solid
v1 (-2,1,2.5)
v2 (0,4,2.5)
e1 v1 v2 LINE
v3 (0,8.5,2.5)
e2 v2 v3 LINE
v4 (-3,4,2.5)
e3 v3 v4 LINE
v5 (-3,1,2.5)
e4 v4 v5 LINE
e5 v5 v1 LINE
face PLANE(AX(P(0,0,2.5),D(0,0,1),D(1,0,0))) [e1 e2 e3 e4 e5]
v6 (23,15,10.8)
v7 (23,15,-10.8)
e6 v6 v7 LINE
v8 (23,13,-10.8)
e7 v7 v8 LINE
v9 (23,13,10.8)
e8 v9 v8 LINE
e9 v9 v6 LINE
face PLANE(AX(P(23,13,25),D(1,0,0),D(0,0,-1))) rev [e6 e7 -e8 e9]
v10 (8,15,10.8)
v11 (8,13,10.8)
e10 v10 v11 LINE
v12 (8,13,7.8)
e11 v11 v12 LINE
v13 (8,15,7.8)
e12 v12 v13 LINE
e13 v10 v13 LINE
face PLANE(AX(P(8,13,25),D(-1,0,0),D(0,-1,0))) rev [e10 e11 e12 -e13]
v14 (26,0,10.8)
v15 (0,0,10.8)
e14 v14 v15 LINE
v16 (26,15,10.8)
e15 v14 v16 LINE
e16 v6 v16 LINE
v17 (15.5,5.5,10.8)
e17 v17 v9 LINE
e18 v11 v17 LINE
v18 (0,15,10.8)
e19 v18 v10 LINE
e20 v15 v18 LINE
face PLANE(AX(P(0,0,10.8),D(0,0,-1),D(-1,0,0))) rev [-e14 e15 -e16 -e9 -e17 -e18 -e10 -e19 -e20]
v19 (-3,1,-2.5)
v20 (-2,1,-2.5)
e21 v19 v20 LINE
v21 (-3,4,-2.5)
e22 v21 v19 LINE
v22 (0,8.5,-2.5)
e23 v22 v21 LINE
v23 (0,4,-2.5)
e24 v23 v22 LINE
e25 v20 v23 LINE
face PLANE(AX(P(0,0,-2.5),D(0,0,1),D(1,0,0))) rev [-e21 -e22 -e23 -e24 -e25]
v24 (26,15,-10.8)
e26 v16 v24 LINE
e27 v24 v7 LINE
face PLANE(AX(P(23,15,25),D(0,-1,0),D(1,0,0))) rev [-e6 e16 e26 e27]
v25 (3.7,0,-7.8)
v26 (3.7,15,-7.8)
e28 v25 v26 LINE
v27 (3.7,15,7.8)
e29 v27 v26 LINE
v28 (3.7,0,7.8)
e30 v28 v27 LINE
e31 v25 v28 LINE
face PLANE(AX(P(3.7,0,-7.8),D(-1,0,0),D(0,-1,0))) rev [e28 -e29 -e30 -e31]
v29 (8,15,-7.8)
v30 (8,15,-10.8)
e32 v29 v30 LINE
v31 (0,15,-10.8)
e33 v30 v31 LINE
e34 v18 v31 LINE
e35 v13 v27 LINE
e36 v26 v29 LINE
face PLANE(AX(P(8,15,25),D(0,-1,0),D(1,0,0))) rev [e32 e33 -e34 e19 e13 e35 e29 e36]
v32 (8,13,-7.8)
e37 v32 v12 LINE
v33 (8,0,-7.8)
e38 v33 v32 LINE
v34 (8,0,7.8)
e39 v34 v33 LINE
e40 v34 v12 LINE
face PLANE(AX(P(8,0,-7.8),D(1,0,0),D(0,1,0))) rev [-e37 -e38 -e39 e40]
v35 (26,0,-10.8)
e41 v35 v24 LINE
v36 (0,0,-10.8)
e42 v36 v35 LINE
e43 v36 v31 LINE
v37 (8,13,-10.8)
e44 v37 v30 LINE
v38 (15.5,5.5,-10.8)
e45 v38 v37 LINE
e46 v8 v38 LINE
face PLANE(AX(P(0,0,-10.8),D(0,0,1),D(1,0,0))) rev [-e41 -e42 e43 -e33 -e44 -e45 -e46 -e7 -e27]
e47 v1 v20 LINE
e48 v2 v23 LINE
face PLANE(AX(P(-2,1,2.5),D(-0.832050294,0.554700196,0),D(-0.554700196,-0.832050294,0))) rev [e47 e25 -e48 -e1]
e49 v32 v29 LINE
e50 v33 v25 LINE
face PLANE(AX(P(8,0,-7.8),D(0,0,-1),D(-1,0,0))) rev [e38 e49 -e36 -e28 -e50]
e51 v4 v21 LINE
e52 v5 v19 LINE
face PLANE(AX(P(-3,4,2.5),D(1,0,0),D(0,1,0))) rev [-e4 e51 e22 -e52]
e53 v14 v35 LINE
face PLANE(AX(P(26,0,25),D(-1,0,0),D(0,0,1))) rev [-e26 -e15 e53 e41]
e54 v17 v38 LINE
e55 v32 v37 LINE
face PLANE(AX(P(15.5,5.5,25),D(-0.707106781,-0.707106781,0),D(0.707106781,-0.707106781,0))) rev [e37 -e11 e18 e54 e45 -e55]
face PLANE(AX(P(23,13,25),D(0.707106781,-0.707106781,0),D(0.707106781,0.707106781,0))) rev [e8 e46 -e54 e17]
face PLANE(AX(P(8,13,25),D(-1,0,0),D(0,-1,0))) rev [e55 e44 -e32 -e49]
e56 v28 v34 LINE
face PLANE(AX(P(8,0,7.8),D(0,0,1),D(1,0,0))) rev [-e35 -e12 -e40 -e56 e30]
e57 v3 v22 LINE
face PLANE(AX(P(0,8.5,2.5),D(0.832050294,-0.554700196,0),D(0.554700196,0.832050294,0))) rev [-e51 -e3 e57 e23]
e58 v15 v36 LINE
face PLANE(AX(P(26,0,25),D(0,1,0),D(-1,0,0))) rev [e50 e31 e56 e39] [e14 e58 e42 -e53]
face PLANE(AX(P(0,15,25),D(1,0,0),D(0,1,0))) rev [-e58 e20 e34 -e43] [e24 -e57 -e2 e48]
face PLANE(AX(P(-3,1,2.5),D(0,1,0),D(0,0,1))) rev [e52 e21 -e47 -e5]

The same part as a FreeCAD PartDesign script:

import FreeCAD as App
import Part
import Sketcher

V = App.Vector
Q = App.Units.Quantity

doc = App.newDocument("Part")
body = doc.addObject("PartDesign::Body", "Body")

# Sketch on XY plane
sketch1 = body.newObject("Sketcher::SketchObject", "Sketch")
sketch1.AttachmentSupport = (doc.getObject("XY_Plane"), [""])
sketch1.MapMode = "FlatFace"
sketch1.addGeometry([
    Part.LineSegment(V(0, 0, 0), V(26, 0, 0)),  # 0
    Part.LineSegment(V(26, 0, 0), V(26, 15, 0)),  # 1
    Part.LineSegment(V(26, 15, 0), V(23, 15, 0)),  # 2
    Part.LineSegment(V(23, 15, 0), V(23, 13, 0)),  # 3
    Part.LineSegment(V(23, 13, 0), V(15.5, 5.5, 0)),  # 4
    Part.LineSegment(V(15.5, 5.5, 0), V(8, 13, 0)),  # 5
    Part.LineSegment(V(8, 13, 0), V(8, 15, 0)),  # 6
    Part.LineSegment(V(8, 15, 0), V(0, 15, 0)),  # 7
    Part.LineSegment(V(0, 15, 0), V(0, 0, 0)),  # 8
], False)
sketch1.addConstraint([
    Sketcher.Constraint("Coincident", 0, 2, 1, 1),
    Sketcher.Constraint("Coincident", 1, 2, 2, 1),
    Sketcher.Constraint("Coincident", 2, 2, 3, 1),
    Sketcher.Constraint("Coincident", 3, 2, 4, 1),
    Sketcher.Constraint("Coincident", 4, 2, 5, 1),
    Sketcher.Constraint("Coincident", 5, 2, 6, 1),
    Sketcher.Constraint("Coincident", 6, 2, 7, 1),
    Sketcher.Constraint("Coincident", 7, 2, 8, 1),
    Sketcher.Constraint("Coincident", 8, 2, 0, 1),
    Sketcher.Constraint("Horizontal", 0),
    Sketcher.Constraint("Vertical", 1),
    Sketcher.Constraint("Horizontal", 2),
    Sketcher.Constraint("Vertical", 3),
    Sketcher.Constraint("Vertical", 6),
    Sketcher.Constraint("Horizontal", 7),
    Sketcher.Constraint("Vertical", 8),
    Sketcher.Constraint("Coincident", 8, 2, -1, 1),
    Sketcher.Constraint("Perpendicular", 4, 5),
    Sketcher.Constraint("Horizontal", 3, 2, 5, 2),
    Sketcher.Constraint("Horizontal", 2, 2, 6, 2),
    Sketcher.Constraint("Equal", 4, 5),
    Sketcher.Constraint("DistanceX", 0, 1, 0, 2, Q("26 mm")),
    Sketcher.Constraint("DistanceX", 2, 2, 2, 1, Q("3 mm")),
    Sketcher.Constraint("DistanceX", 7, 2, 7, 1, Q("8 mm")),
    Sketcher.Constraint("DistanceY", 1, 1, 1, 2, Q("15 mm")),
    Sketcher.Constraint("DistanceY", 3, 2, 3, 1, Q("2 mm")),
])
pad1 = body.newObject("PartDesign::Pad", "Pad")
pad1.Profile = sketch1
pad1.Length = 50
pad1.Midplane = True

# Sketch on XZ plane
sketch2 = body.newObject("Sketcher::SketchObject", "Sketch001")
sketch2.AttachmentSupport = (doc.getObject("XZ_Plane"), [""])
sketch2.MapMode = "FlatFace"
sketch2.AttachmentOffset = App.Placement(V(0, 0, -15), App.Rotation())
sketch2.addGeometry([
    Part.LineSegment(V(3.7, -7.8, 0), V(3.7, 7.8, 0)),  # 0
    Part.LineSegment(V(3.7, 7.8, 0), V(8, 7.8, 0)),  # 1
    Part.LineSegment(V(8, 7.8, 0), V(8, -7.8, 0)),  # 2
    Part.LineSegment(V(8, -7.8, 0), V(3.7, -7.8, 0)),  # 3
    Part.LineSegment(V(0, -25, 0), V(0, -10.8, 0)),  # 4
    Part.LineSegment(V(0, -10.8, 0), V(26, -10.8, 0)),  # 5
    Part.LineSegment(V(26, -10.8, 0), V(26, -25, 0)),  # 6
    Part.LineSegment(V(26, -25, 0), V(0, -25, 0)),  # 7
    Part.LineSegment(V(0, 10.8, 0), V(0, 25, 0)),  # 8
    Part.LineSegment(V(0, 25, 0), V(26, 25, 0)),  # 9
    Part.LineSegment(V(26, 25, 0), V(26, 10.8, 0)),  # 10
    Part.LineSegment(V(26, 10.8, 0), V(0, 10.8, 0)),  # 11
], False)
sketch2.addConstraint([
    Sketcher.Constraint("Coincident", 0, 2, 1, 1),
    Sketcher.Constraint("Coincident", 1, 2, 2, 1),
    Sketcher.Constraint("Coincident", 2, 2, 3, 1),
    Sketcher.Constraint("Coincident", 3, 2, 0, 1),
    Sketcher.Constraint("Coincident", 4, 2, 5, 1),
    Sketcher.Constraint("Coincident", 5, 2, 6, 1),
    Sketcher.Constraint("Coincident", 6, 2, 7, 1),
    Sketcher.Constraint("Coincident", 7, 2, 4, 1),
    Sketcher.Constraint("Coincident", 8, 2, 9, 1),
    Sketcher.Constraint("Coincident", 9, 2, 10, 1),
    Sketcher.Constraint("Coincident", 10, 2, 11, 1),
    Sketcher.Constraint("Coincident", 11, 2, 8, 1),
    Sketcher.Constraint("Vertical", 0),
    Sketcher.Constraint("Horizontal", 1),
    Sketcher.Constraint("Vertical", 2),
    Sketcher.Constraint("Horizontal", 3),
    Sketcher.Constraint("Vertical", 4),
    Sketcher.Constraint("Horizontal", 5),
    Sketcher.Constraint("Vertical", 6),
    Sketcher.Constraint("Horizontal", 7),
    Sketcher.Constraint("Vertical", 8),
    Sketcher.Constraint("Horizontal", 9),
    Sketcher.Constraint("Vertical", 10),
    Sketcher.Constraint("Horizontal", 11),
    Sketcher.Constraint("Symmetric", 7, 2, 8, 2, -1, 1),
    Sketcher.Constraint("Symmetric", 5, 2, 10, 2, -1),
    Sketcher.Constraint("PointOnObject", 4, 2, -2),
    Sketcher.Constraint("DistanceX", 5, 1, 5, 2, Q("26 mm")),
    Sketcher.Constraint("DistanceX", 1, 1, 1, 2, Q("4.3 mm")),
    Sketcher.Constraint("DistanceY", 0, 1, 0, 2, Q("15.6 mm")),
    Sketcher.Constraint("DistanceY", 4, 1, 4, 2, Q("14.2 mm")),
    Sketcher.Constraint("DistanceX", -1, 1, 1, 2, Q("8 mm")),
    Sketcher.Constraint("DistanceY", 6, 2, -1, 1, Q("25 mm")),
    Sketcher.Constraint("DistanceY", 4, 2, 3, 2, Q("3 mm")),
])
pocket1 = body.newObject("PartDesign::Pocket", "Pocket")
pocket1.Profile = sketch2
pocket1.Type = "ThroughAll"
pocket1.Midplane = True

# Sketch on XY plane
sketch3 = body.newObject("Sketcher::SketchObject", "Sketch002")
sketch3.AttachmentSupport = (doc.getObject("XY_Plane"), [""])
sketch3.MapMode = "FlatFace"
sketch3.addGeometry([
    Part.LineSegment(V(0, 8.5, 0), V(-3, 4, 0)),  # 0
    Part.LineSegment(V(-3, 4, 0), V(-3, 1, 0)),  # 1
    Part.LineSegment(V(-3, 1, 0), V(-2, 1, 0)),  # 2
    Part.LineSegment(V(-2, 1, 0), V(0, 4, 0)),  # 3
    Part.LineSegment(V(0, 4, 0), V(0, 8.5, 0)),  # 4
], False)
sketch3.addConstraint([
    Sketcher.Constraint("Coincident", 0, 2, 1, 1),
    Sketcher.Constraint("Coincident", 1, 2, 2, 1),
    Sketcher.Constraint("Coincident", 2, 2, 3, 1),
    Sketcher.Constraint("Coincident", 3, 2, 4, 1),
    Sketcher.Constraint("Coincident", 4, 2, 0, 1),
    Sketcher.Constraint("Vertical", 1),
    Sketcher.Constraint("Horizontal", 2),
    Sketcher.Constraint("Vertical", 4),
    Sketcher.Constraint("PointOnObject", 3, 2, -2),
    Sketcher.Constraint("Parallel", 0, 3),
    Sketcher.Constraint("Horizontal", 0, 2, 3, 2),
    Sketcher.Constraint("DistanceX", 2, 1, 2, 2, Q("1 mm")),
    Sketcher.Constraint("DistanceY", 1, 2, 1, 1, Q("3 mm")),
    Sketcher.Constraint("DistanceY", 4, 1, 4, 2, Q("4.5 mm")),
    Sketcher.Constraint("DistanceY", -1, 1, 0, 2, Q("4 mm")),
])
pad2 = body.newObject("PartDesign::Pad", "Pad001")
pad2.Profile = sketch3
pad2.Length = 5
pad2.Midplane = True

doc.recompute()
